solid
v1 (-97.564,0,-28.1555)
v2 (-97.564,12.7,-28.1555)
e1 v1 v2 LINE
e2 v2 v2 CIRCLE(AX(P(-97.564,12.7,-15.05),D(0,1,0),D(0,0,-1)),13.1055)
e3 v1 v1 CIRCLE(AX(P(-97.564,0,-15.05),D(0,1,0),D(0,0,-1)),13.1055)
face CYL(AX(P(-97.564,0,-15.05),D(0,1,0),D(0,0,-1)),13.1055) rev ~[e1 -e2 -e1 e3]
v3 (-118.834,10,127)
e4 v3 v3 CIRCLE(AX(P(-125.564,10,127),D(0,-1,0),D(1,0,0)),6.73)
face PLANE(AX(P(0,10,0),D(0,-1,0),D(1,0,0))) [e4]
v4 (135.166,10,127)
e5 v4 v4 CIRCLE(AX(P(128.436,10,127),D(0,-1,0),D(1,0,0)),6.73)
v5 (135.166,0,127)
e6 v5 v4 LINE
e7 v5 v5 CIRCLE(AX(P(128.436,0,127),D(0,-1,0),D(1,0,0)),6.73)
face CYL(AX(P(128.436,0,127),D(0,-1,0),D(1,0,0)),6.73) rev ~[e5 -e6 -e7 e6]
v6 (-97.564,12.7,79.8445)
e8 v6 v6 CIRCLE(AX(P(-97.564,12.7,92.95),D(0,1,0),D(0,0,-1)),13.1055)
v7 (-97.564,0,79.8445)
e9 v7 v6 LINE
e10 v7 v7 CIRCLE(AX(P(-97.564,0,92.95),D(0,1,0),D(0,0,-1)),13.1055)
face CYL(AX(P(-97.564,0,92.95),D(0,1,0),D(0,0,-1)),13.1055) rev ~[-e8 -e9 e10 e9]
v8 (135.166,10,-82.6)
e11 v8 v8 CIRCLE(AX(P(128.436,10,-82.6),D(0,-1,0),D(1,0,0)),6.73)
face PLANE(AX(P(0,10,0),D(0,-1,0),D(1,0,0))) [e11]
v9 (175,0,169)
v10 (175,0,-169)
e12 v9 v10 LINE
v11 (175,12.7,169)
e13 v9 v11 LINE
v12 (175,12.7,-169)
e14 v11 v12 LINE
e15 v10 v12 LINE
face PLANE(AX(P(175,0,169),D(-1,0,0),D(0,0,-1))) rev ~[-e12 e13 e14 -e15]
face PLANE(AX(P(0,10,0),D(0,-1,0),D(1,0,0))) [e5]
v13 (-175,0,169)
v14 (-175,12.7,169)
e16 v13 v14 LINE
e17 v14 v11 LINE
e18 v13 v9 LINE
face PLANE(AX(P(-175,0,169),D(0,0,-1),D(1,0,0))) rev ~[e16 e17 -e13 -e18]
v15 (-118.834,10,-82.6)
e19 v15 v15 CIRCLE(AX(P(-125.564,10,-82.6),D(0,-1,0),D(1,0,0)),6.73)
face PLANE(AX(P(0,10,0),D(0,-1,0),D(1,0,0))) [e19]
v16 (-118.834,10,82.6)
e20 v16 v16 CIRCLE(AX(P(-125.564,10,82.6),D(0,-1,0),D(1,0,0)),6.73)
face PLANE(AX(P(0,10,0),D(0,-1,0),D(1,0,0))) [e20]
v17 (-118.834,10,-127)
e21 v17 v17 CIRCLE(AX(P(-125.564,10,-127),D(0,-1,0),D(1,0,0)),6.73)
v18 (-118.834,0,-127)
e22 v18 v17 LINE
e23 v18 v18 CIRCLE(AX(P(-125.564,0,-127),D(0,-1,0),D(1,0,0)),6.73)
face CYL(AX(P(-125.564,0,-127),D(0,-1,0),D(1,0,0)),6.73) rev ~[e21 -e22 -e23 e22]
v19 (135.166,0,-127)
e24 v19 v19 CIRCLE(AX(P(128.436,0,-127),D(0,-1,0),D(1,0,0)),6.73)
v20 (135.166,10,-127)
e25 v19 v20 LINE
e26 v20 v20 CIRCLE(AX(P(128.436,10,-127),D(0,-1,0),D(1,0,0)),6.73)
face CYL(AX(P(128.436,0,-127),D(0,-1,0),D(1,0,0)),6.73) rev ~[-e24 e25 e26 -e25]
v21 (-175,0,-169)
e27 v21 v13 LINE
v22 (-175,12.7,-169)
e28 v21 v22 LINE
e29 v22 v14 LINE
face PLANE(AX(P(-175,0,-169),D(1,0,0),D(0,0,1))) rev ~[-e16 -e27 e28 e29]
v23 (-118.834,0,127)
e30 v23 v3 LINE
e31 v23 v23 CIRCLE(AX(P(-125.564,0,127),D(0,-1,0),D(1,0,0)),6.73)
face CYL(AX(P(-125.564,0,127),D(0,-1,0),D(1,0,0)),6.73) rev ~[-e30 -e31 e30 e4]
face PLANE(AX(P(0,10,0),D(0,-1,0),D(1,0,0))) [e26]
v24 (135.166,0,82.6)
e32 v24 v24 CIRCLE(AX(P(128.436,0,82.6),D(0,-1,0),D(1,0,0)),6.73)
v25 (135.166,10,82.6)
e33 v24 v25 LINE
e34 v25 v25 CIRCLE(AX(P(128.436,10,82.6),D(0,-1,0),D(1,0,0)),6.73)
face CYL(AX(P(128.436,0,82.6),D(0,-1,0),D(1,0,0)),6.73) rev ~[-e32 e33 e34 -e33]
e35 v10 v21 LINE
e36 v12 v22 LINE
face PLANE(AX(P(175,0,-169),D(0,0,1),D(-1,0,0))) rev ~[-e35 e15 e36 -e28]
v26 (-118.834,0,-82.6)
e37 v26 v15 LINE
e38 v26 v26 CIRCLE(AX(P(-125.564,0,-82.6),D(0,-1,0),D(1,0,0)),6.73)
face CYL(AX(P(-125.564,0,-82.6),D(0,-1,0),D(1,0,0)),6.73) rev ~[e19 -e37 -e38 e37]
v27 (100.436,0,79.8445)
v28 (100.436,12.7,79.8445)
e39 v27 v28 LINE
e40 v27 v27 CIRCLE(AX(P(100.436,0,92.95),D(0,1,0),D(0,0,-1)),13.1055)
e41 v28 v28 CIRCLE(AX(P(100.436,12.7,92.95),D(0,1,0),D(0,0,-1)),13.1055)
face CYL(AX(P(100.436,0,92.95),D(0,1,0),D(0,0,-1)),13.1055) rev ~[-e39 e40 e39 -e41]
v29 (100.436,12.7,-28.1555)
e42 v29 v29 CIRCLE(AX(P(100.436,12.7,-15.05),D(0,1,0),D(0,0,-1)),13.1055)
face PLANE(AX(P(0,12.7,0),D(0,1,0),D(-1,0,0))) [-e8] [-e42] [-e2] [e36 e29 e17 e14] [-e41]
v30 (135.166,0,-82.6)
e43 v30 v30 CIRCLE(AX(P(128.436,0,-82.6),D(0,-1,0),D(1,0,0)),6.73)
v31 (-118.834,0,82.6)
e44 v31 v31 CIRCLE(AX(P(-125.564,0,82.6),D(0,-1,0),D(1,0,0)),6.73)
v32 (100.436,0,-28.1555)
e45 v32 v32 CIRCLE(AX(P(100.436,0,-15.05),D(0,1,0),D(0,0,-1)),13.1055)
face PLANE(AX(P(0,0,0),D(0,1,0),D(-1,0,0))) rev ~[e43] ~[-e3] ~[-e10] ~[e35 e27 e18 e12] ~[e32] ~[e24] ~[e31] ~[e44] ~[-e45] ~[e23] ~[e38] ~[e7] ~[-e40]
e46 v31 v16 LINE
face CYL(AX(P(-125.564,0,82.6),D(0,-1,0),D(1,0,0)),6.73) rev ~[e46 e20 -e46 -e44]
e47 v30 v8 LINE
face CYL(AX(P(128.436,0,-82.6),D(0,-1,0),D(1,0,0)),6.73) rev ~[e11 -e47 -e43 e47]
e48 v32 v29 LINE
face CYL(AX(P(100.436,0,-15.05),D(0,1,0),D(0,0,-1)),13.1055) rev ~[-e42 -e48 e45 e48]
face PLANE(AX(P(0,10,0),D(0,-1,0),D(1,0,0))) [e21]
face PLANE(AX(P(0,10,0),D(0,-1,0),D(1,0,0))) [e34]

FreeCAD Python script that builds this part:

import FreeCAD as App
import Part
import Sketcher
from FreeCAD import Vector

doc = App.newDocument("Part")
params = doc.addObject("Spreadsheet::Sheet", "Params")
for row, (alias, value) in enumerate([
    ("sketch1_width", "350 mm"),
    ("sketch1_height", "338 mm"),
    ("pad1_length", "12.7 mm"),
    ("sketch2_diameter", "24 mm"),
    ("sketch2_diameter2", "13.46 mm"),
    ("pocket1_length", "10 mm"),
    ("hole_diameter", "26.211 mm"),
    ("hole_depth", "12.7 mm"),
], start=1):
    params.set(f"A{row}", alias)
    params.set(f"B{row}", "=" + value)
    params.setAlias(f"B{row}", alias)

body = doc.addObject("PartDesign::Body", "Body")

sketch1 = body.newObject("Sketcher::SketchObject", "Sketch")
sketch1.AttachmentSupport = (doc.getObject("XZ_Plane"), [""])
sketch1.MapMode = "FlatFace"
sketch1.addGeometry([
    Part.LineSegment(Vector(175, 169, 0), Vector(175, -169, 0)),
    Part.LineSegment(Vector(175, -169, 0), Vector(-175, -169, 0)),
    Part.LineSegment(Vector(-175, -169, 0), Vector(-175, 169, 0)),
    Part.LineSegment(Vector(-175, 169, 0), Vector(175, 169, 0)),
], False)
sketch1.addConstraint([
    Sketcher.Constraint("Coincident", 0, 2, 1, 1),
    Sketcher.Constraint("Coincident", 1, 2, 2, 1),
    Sketcher.Constraint("Coincident", 2, 2, 3, 1),
    Sketcher.Constraint("Coincident", 3, 2, 0, 1),
    Sketcher.Constraint("Vertical", 0),
    Sketcher.Constraint("Horizontal", 1),
    Sketcher.Constraint("Vertical", 2),
    Sketcher.Constraint("Horizontal", 3),
    Sketcher.Constraint("Symmetric", 0, 2, 2, 2, -1, 1),
    Sketcher.Constraint("DistanceX", 1, 2, 1, 1, 350.0),
    Sketcher.Constraint("DistanceY", 0, 2, 0, 1, 338.0),
])
sketch1.setExpression("Constraints[9]", "Params.sketch1_width")
sketch1.setExpression("Constraints[10]", "Params.sketch1_height")
pad1 = body.newObject("PartDesign::Pad", "Pad")
pad1.Profile = sketch1
pad1.setExpression("Length", "Params.pad1_length")
pad1.Reversed = True

sketch2 = body.newObject("Sketcher::SketchObject", "Sketch001")
sketch2.AttachmentSupport = (doc.getObject("XZ_Plane"), [""])
sketch2.MapMode = "FlatFace"
sketch2.addGeometry([
    Part.Circle(Vector(-97.564, 92.95, 0), Vector(0, 0, 1), 12),
    Part.Circle(Vector(-97.564, -15.05, 0), Vector(0, 0, 1), 12),
    Part.Circle(Vector(100.436, 92.95, 0), Vector(0, 0, 1), 12),
    Part.Circle(Vector(100.436, -15.05, 0), Vector(0, 0, 1), 12),
    Part.Circle(Vector(-125.564, 127, 0), Vector(0, 0, 1), 6.73),
    Part.Circle(Vector(-125.564, 82.6, 0), Vector(0, 0, 1), 6.73),
    Part.Circle(Vector(-125.564, -82.6, 0), Vector(0, 0, 1), 6.73),
    Part.Circle(Vector(-125.564, -127, 0), Vector(0, 0, 1), 6.73),
    Part.Circle(Vector(128.436, -127, 0), Vector(0, 0, 1), 6.73),
    Part.Circle(Vector(128.436, -82.6, 0), Vector(0, 0, 1), 6.73),
    Part.Circle(Vector(128.436, 82.6, 0), Vector(0, 0, 1), 6.73),
    Part.Circle(Vector(128.436, 127, 0), Vector(0, 0, 1), 6.73),
], False)
sketch2.addConstraint([
    Sketcher.Constraint("Equal", 0, 1),
    Sketcher.Constraint("Equal", 1, 2),
    Sketcher.Constraint("Equal", 2, 3),
    Sketcher.Constraint("Equal", 4, 5),
    Sketcher.Constraint("Equal", 5, 6),
    Sketcher.Constraint("Equal", 6, 7),
    Sketcher.Constraint("Equal", 7, 8),
    Sketcher.Constraint("Equal", 8, 9),
    Sketcher.Constraint("Equal", 9, 10),
    Sketcher.Constraint("Equal", 10, 11),
    Sketcher.Constraint("Symmetric", 5, 3, 6, 3, -1),
    Sketcher.Constraint("Symmetric", 4, 3, 7, 3, -1),
    Sketcher.Constraint("Symmetric", 9, 3, 10, 3, -1),
    Sketcher.Constraint("Symmetric", 8, 3, 11, 3, -1),
    Sketcher.Constraint("Horizontal", 0, 3, 2, 3),
    Sketcher.Constraint("Horizontal", 1, 3, 3, 3),
    Sketcher.Constraint("Horizontal", 7, 3, 8, 3),
    Sketcher.Constraint("Horizontal", 6, 3, 9, 3),
    Sketcher.Constraint("Vertical", 0, 3, 1, 3),
    Sketcher.Constraint("Vertical", 2, 3, 3, 3),
    Sketcher.Constraint("Vertical", 4, 3, 5, 3),
    Sketcher.Constraint("Vertical", 8, 3, 9, 3),
    Sketcher.Constraint("Diameter", 0, 24.0),
    Sketcher.Constraint("Diameter", 4, 13.46),
    Sketcher.Constraint("DistanceY", -1, 1, 4, 3, 127.0),
    Sketcher.Constraint("DistanceY", 1, 3, 0, 3, 108.0),
    Sketcher.Constraint("DistanceX", 0, 3, 2, 3, 198.0),
    Sketcher.Constraint("DistanceX", 4, 3, 0, 3, 28.0),
    Sketcher.Constraint("DistanceX", 3, 3, 8, 3, 28.0),
    Sketcher.Constraint("DistanceY", -1, 1, 5, 3, 82.6),
    Sketcher.Constraint("DistanceY", -1, 1, 0, 3, 92.95),
    Sketcher.Constraint("DistanceX", 0, 3, -1, 1, 97.564),
])
sketch2.setExpression("Constraints[22]", "Params.sketch2_diameter")
sketch2.setExpression("Constraints[23]", "Params.sketch2_diameter2")
pocket1 = body.newObject("PartDesign::Pocket", "Pocket")
pocket1.Profile = sketch2
pocket1.setExpression("Length", "Params.pocket1_length")

sketch3 = body.newObject("Sketcher::SketchObject", "Sketch002")
sketch3.AttachmentSupport = (doc.getObject("XZ_Plane"), [""])
sketch3.MapMode = "FlatFace"
sketch3.addGeometry([
    Part.Circle(Vector(-97.564, -15.05, 0), Vector(0, 0, 1), 13.1055),
    Part.Circle(Vector(-97.564, 92.95, 0), Vector(0, 0, 1), 13.1055),
    Part.Circle(Vector(100.436, -15.05, 0), Vector(0, 0, 1), 13.1055),
    Part.Circle(Vector(100.436, 92.95, 0), Vector(0, 0, 1), 13.1055),
], False)
sketch3.addConstraint([
    Sketcher.Constraint("Equal", 0, 1),
    Sketcher.Constraint("Equal", 1, 2),
    Sketcher.Constraint("Equal", 2, 3),
    Sketcher.Constraint("Horizontal", 0, 3, 2, 3),
    Sketcher.Constraint("Horizontal", 1, 3, 3, 3),
    Sketcher.Constraint("Vertical", 0, 3, 1, 3),
    Sketcher.Constraint("Vertical", 2, 3, 3, 3),
    Sketcher.Constraint("Diameter", 0, 26.211),
    Sketcher.Constraint("DistanceY", 0, 3, 1, 3, 108.0),
    Sketcher.Constraint("DistanceX", 0, 3, 2, 3, 198.0),
    Sketcher.Constraint("DistanceY", 0, 3, -1, 1, 15.05),
    Sketcher.Constraint("DistanceX", 0, 3, -1, 1, 97.564),
])
doc.recompute()
hole = body.newObject("PartDesign::Hole", "Hole")
hole.Profile = sketch3
hole.ThreadType = "None"
hole.setExpression("Diameter", "Params.hole_diameter")
hole.DepthType = "Dimension"
hole.setExpression("Depth", "Params.hole_depth")
hole.DrillPoint = "Flat"

doc.recompute()
